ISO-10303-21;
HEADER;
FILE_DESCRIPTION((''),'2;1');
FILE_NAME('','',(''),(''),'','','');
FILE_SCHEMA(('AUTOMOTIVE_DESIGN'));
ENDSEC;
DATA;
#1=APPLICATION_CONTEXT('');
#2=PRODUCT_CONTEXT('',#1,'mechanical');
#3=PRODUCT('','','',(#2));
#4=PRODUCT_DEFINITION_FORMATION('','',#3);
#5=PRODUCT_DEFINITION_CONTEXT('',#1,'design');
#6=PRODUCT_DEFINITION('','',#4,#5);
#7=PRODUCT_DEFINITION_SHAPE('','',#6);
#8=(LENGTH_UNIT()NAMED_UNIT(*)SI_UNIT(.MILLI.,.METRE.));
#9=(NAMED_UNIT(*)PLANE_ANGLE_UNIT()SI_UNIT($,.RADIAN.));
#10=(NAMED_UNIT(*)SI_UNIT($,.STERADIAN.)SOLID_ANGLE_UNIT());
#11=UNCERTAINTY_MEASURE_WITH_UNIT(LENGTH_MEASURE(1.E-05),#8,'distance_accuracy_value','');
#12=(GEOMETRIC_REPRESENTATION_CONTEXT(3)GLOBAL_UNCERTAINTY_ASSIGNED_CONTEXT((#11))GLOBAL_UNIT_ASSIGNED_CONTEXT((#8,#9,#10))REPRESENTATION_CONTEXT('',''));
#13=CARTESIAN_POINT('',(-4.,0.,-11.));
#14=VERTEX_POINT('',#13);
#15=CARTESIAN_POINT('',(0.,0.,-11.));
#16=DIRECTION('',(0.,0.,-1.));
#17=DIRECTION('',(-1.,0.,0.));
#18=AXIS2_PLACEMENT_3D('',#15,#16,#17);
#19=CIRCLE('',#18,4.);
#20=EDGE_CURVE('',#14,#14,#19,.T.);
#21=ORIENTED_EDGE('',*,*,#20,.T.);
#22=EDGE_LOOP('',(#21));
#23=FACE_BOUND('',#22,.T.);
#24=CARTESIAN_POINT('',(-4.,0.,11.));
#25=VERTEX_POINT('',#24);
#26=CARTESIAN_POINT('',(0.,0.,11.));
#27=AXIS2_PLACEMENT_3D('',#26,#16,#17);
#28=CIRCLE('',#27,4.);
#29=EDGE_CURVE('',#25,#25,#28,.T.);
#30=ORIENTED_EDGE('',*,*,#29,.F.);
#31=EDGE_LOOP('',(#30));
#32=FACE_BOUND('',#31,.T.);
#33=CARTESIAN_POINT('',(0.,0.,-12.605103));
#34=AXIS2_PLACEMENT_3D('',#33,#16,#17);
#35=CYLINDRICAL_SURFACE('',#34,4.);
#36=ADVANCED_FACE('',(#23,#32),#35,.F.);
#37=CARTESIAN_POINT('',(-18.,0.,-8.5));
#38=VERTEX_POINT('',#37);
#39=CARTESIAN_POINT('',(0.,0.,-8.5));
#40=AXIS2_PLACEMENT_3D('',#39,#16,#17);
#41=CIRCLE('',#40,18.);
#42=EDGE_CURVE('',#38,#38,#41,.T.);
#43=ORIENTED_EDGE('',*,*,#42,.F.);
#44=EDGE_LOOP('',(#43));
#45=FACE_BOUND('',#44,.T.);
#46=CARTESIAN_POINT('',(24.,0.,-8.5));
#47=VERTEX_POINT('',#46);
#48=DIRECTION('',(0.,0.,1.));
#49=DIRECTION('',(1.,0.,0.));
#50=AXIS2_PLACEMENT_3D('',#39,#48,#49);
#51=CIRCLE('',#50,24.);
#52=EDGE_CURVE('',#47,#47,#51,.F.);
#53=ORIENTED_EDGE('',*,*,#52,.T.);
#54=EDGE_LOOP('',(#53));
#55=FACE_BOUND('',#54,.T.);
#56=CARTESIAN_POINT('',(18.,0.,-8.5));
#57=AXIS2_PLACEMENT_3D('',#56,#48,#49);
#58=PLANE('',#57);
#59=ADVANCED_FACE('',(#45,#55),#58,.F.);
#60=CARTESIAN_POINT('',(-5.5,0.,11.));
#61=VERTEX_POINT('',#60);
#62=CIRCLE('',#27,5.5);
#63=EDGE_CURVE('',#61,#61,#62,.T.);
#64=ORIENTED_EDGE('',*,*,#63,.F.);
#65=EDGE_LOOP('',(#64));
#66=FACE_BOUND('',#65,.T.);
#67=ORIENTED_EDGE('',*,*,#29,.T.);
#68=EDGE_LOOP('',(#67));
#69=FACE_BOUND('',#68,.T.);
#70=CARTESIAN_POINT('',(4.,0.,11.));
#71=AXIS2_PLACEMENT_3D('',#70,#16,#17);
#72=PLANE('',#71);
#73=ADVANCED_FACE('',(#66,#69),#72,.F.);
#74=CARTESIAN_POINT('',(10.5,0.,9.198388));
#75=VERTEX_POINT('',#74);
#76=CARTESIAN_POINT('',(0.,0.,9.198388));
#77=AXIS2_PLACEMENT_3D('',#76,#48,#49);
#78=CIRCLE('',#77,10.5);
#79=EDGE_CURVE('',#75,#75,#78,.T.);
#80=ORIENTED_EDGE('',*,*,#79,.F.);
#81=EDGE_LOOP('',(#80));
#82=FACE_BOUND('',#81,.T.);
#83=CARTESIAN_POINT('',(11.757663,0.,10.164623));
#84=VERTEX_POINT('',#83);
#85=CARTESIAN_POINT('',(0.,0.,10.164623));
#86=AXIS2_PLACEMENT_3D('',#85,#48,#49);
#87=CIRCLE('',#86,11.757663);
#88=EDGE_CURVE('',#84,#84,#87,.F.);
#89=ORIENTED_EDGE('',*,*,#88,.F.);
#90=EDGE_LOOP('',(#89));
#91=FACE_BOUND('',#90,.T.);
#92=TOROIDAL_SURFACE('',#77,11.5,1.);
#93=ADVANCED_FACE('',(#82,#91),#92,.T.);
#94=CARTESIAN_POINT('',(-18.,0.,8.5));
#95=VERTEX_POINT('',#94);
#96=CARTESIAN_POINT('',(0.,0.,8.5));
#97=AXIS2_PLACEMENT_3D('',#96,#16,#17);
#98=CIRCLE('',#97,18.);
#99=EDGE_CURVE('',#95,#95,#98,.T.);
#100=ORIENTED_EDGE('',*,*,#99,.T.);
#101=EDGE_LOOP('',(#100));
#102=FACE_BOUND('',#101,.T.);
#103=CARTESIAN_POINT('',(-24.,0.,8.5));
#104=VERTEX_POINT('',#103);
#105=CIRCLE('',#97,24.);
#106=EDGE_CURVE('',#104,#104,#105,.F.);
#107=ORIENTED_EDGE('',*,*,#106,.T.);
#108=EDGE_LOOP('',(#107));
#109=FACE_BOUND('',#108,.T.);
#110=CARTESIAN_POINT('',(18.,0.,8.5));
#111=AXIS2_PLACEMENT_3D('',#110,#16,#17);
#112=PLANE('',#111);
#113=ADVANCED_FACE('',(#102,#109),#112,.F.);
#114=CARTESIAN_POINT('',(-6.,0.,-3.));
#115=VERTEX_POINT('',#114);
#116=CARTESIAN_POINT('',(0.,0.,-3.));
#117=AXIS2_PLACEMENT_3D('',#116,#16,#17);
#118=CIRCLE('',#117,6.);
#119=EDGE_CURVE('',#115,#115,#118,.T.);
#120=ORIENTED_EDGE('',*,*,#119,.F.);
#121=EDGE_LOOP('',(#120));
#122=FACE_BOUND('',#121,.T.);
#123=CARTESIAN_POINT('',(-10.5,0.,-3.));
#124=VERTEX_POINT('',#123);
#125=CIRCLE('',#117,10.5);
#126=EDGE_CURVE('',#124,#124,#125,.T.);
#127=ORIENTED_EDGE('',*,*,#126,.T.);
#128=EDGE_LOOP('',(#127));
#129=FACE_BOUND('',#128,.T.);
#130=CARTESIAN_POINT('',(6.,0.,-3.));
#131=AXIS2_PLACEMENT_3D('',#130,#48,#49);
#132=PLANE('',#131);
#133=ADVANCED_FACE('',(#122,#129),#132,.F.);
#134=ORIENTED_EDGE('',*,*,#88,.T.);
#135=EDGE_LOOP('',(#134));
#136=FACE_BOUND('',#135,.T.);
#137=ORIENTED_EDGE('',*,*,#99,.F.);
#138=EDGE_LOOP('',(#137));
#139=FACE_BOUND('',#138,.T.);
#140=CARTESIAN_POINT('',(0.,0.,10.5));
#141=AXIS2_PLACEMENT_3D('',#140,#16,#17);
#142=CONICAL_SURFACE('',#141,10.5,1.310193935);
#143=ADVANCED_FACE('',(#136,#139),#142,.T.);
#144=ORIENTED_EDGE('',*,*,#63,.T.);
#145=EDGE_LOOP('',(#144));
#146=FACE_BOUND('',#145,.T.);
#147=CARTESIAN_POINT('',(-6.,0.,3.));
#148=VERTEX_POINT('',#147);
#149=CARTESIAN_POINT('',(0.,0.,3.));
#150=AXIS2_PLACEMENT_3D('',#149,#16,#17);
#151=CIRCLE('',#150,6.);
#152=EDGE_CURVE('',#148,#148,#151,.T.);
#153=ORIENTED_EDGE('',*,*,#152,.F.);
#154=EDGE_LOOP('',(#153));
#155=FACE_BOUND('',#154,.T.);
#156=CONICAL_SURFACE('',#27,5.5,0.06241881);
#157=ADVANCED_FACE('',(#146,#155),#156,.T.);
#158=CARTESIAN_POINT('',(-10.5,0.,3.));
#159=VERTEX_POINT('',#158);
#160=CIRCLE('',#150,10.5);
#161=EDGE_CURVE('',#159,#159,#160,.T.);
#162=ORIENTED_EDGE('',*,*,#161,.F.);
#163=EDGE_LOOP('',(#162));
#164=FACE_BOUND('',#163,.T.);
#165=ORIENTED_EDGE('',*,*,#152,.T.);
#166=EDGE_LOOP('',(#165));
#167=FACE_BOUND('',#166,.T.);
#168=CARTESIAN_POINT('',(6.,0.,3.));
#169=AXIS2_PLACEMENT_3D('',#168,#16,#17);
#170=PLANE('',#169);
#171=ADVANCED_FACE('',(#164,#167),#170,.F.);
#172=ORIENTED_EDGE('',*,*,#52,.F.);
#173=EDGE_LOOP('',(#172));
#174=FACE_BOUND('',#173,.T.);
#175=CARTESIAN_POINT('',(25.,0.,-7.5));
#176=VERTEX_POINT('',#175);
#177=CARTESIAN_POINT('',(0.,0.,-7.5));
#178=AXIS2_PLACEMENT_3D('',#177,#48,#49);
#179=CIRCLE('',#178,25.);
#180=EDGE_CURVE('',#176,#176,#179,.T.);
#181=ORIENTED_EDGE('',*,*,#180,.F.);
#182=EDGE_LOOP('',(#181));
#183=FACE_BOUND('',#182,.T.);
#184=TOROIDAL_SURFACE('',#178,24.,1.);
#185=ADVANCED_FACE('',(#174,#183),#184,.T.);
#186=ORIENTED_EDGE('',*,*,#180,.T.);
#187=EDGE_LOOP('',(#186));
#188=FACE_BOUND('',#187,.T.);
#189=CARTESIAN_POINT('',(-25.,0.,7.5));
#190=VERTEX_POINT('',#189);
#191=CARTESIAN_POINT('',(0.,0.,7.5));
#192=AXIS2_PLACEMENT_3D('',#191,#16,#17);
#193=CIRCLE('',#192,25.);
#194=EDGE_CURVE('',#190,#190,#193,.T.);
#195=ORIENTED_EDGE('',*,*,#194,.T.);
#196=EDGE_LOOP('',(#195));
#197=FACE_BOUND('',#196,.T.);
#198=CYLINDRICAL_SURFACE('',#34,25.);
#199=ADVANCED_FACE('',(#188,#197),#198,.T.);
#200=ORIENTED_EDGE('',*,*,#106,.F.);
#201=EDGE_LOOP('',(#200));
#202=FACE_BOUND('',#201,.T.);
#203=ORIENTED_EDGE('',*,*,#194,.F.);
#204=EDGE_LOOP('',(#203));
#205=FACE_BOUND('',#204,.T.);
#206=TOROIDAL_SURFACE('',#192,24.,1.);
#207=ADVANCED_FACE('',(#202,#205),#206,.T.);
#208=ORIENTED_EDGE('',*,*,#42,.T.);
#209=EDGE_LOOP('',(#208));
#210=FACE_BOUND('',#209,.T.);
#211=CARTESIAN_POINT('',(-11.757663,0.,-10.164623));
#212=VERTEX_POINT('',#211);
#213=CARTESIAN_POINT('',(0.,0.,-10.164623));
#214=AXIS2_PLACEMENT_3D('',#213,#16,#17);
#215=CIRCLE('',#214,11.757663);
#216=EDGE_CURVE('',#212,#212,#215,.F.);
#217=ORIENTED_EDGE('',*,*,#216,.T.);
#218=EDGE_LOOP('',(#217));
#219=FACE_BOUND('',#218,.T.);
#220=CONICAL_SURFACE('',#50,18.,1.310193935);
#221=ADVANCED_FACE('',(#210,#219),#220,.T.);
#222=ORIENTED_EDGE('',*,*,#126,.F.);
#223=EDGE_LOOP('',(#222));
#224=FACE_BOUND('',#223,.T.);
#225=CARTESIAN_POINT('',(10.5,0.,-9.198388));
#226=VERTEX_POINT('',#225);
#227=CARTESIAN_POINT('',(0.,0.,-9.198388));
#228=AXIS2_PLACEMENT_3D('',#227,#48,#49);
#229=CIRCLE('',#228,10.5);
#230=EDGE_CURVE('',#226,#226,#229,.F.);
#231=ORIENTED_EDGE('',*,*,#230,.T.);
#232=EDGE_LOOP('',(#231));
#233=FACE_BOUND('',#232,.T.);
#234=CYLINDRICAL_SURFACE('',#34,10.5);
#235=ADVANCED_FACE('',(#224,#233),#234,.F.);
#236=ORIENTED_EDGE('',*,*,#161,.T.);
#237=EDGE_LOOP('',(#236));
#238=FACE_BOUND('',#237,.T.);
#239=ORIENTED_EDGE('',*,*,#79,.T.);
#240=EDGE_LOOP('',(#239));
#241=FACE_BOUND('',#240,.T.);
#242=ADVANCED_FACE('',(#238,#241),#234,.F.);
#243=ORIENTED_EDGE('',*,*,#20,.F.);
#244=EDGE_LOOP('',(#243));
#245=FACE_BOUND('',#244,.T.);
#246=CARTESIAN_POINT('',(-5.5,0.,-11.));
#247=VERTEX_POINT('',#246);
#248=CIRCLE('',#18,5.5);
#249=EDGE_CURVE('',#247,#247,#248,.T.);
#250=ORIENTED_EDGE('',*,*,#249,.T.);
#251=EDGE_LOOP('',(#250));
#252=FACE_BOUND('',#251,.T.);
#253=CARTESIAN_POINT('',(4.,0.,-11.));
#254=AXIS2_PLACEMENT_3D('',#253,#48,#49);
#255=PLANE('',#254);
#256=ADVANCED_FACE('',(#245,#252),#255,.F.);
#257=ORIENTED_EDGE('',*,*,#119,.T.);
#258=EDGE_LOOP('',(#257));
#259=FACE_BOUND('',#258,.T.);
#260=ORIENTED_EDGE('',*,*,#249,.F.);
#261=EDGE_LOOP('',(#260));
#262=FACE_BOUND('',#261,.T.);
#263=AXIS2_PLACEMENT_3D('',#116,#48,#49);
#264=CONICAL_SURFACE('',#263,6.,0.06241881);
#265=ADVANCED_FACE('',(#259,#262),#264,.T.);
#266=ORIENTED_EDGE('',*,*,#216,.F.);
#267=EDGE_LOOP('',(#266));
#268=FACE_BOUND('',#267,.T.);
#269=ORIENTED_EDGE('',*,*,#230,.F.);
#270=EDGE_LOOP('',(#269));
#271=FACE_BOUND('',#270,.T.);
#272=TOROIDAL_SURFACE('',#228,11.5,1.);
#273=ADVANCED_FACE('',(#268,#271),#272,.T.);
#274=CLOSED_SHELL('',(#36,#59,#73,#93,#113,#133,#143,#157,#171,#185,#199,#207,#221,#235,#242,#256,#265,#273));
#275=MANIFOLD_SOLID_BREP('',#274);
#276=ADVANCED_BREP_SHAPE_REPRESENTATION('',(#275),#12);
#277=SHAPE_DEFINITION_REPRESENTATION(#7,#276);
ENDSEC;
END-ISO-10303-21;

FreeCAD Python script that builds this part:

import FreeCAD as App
import Part
import Sketcher

V = App.Vector
Q = App.Units.Quantity


def edges_at(feature, points):
    """Names of the edges that pass closest to the given points."""
    edges = feature.Shape.Edges
    near = lambda p: min(range(len(edges)), key=lambda i: edges[i].distToShape(Part.Vertex(*p))[0])
    return sorted({f"Edge{near(p) + 1}" for p in points})

doc = App.newDocument("Part")
body = doc.addObject("PartDesign::Body", "Body")

# Sketch on XZ plane
sketch1 = body.newObject("Sketcher::SketchObject", "Sketch")
sketch1.AttachmentSupport = (doc.getObject("XZ_Plane"), [""])
sketch1.MapMode = "FlatFace"
sketch1.addGeometry([
    Part.LineSegment(V(4, -11, 0), V(4, 11, 0)),  # 0
    Part.LineSegment(V(4, 11, 0), V(5.5, 11, 0)),  # 1
    Part.LineSegment(V(5.5, 11, 0), V(6, 3, 0)),  # 2
    Part.LineSegment(V(6, 3, 0), V(10.5, 3, 0)),  # 3
    Part.LineSegment(V(10.5, 3, 0), V(10.5, 10.5, 0)),  # 4
    Part.LineSegment(V(10.5, 10.5, 0), V(18, 8.5, 0)),  # 5
    Part.LineSegment(V(18, 8.5, 0), V(25, 8.5, 0)),  # 6
    Part.LineSegment(V(25, 8.5, 0), V(25, -8.5, 0)),  # 7
    Part.LineSegment(V(25, -8.5, 0), V(18, -8.5, 0)),  # 8
    Part.LineSegment(V(18, -8.5, 0), V(10.5, -10.5, 0)),  # 9
    Part.LineSegment(V(10.5, -10.5, 0), V(10.5, -3, 0)),  # 10
    Part.LineSegment(V(10.5, -3, 0), V(6, -3, 0)),  # 11
    Part.LineSegment(V(6, -3, 0), V(5.5, -11, 0)),  # 12
    Part.LineSegment(V(5.5, -11, 0), V(4, -11, 0)),  # 13
], False)
sketch1.addConstraint([
    Sketcher.Constraint("Coincident", 0, 2, 1, 1),
    Sketcher.Constraint("Coincident", 1, 2, 2, 1),
    Sketcher.Constraint("Coincident", 2, 2, 3, 1),
    Sketcher.Constraint("Coincident", 3, 2, 4, 1),
    Sketcher.Constraint("Coincident", 4, 2, 5, 1),
    Sketcher.Constraint("Coincident", 5, 2, 6, 1),
    Sketcher.Constraint("Coincident", 6, 2, 7, 1),
    Sketcher.Constraint("Coincident", 7, 2, 8, 1),
    Sketcher.Constraint("Coincident", 8, 2, 9, 1),
    Sketcher.Constraint("Coincident", 9, 2, 10, 1),
    Sketcher.Constraint("Coincident", 10, 2, 11, 1),
    Sketcher.Constraint("Coincident", 11, 2, 12, 1),
    Sketcher.Constraint("Coincident", 12, 2, 13, 1),
    Sketcher.Constraint("Coincident", 13, 2, 0, 1),
    Sketcher.Constraint("Vertical", 0),
    Sketcher.Constraint("Horizontal", 1),
    Sketcher.Constraint("Horizontal", 3),
    Sketcher.Constraint("Vertical", 4),
    Sketcher.Constraint("Horizontal", 6),
    Sketcher.Constraint("Vertical", 7),
    Sketcher.Constraint("Horizontal", 8),
    Sketcher.Constraint("Vertical", 10),
    Sketcher.Constraint("Horizontal", 11),
    Sketcher.Constraint("Horizontal", 13),
    Sketcher.Constraint("Symmetric", 5, 2, 8, 2, -1),
    Sketcher.Constraint("Symmetric", 4, 2, 9, 2, -1),
    Sketcher.Constraint("Symmetric", 2, 2, 11, 2, -1),
    Sketcher.Constraint("Symmetric", 1, 2, 12, 2, -1),
    Sketcher.Constraint("DistanceX", 6, 1, 6, 2, Q("7 mm")),
    Sketcher.Constraint("DistanceY", 0, 1, 0, 2, Q("22 mm")),
    Sketcher.Constraint("DistanceY", 7, 2, 7, 1, Q("17 mm")),
    Sketcher.Constraint("DistanceX", 1, 1, 1, 2, Q("1.5 mm")),
    Sketcher.Constraint("DistanceX", 3, 1, 3, 2, Q("4.5 mm")),
    Sketcher.Constraint("DistanceY", 4, 1, 4, 2, Q("7.5 mm")),
    Sketcher.Constraint("DistanceX", -1, 1, 0, 2, Q("4 mm")),
    Sketcher.Constraint("DistanceX", -1, 1, 2, 2, Q("6 mm")),
    Sketcher.Constraint("DistanceY", -1, 1, 2, 2, Q("3 mm")),
    Sketcher.Constraint("DistanceX", -1, 1, 5, 2, Q("18 mm")),
])
revolution = body.newObject("PartDesign::Revolution", "Revolution")
revolution.Profile = sketch1
revolution.ReferenceAxis = (sketch1, ["V_Axis"])
revolution.Angle = 360
doc.recompute()

fillet = body.newObject("PartDesign::Fillet", "Fillet")
fillet.Base = (revolution, edges_at(revolution, [(25, 0, -8.5), (25, 0, 8.5)]))
fillet.Radius = 1
doc.recompute()

fillet2 = body.newObject("PartDesign::Fillet", "Fillet001")
fillet2.Base = (fillet, edges_at(fillet, [(10.5, 0, -10.5), (10.5, 0, 10.5)]))
fillet2.Radius = 1

doc.recompute()
